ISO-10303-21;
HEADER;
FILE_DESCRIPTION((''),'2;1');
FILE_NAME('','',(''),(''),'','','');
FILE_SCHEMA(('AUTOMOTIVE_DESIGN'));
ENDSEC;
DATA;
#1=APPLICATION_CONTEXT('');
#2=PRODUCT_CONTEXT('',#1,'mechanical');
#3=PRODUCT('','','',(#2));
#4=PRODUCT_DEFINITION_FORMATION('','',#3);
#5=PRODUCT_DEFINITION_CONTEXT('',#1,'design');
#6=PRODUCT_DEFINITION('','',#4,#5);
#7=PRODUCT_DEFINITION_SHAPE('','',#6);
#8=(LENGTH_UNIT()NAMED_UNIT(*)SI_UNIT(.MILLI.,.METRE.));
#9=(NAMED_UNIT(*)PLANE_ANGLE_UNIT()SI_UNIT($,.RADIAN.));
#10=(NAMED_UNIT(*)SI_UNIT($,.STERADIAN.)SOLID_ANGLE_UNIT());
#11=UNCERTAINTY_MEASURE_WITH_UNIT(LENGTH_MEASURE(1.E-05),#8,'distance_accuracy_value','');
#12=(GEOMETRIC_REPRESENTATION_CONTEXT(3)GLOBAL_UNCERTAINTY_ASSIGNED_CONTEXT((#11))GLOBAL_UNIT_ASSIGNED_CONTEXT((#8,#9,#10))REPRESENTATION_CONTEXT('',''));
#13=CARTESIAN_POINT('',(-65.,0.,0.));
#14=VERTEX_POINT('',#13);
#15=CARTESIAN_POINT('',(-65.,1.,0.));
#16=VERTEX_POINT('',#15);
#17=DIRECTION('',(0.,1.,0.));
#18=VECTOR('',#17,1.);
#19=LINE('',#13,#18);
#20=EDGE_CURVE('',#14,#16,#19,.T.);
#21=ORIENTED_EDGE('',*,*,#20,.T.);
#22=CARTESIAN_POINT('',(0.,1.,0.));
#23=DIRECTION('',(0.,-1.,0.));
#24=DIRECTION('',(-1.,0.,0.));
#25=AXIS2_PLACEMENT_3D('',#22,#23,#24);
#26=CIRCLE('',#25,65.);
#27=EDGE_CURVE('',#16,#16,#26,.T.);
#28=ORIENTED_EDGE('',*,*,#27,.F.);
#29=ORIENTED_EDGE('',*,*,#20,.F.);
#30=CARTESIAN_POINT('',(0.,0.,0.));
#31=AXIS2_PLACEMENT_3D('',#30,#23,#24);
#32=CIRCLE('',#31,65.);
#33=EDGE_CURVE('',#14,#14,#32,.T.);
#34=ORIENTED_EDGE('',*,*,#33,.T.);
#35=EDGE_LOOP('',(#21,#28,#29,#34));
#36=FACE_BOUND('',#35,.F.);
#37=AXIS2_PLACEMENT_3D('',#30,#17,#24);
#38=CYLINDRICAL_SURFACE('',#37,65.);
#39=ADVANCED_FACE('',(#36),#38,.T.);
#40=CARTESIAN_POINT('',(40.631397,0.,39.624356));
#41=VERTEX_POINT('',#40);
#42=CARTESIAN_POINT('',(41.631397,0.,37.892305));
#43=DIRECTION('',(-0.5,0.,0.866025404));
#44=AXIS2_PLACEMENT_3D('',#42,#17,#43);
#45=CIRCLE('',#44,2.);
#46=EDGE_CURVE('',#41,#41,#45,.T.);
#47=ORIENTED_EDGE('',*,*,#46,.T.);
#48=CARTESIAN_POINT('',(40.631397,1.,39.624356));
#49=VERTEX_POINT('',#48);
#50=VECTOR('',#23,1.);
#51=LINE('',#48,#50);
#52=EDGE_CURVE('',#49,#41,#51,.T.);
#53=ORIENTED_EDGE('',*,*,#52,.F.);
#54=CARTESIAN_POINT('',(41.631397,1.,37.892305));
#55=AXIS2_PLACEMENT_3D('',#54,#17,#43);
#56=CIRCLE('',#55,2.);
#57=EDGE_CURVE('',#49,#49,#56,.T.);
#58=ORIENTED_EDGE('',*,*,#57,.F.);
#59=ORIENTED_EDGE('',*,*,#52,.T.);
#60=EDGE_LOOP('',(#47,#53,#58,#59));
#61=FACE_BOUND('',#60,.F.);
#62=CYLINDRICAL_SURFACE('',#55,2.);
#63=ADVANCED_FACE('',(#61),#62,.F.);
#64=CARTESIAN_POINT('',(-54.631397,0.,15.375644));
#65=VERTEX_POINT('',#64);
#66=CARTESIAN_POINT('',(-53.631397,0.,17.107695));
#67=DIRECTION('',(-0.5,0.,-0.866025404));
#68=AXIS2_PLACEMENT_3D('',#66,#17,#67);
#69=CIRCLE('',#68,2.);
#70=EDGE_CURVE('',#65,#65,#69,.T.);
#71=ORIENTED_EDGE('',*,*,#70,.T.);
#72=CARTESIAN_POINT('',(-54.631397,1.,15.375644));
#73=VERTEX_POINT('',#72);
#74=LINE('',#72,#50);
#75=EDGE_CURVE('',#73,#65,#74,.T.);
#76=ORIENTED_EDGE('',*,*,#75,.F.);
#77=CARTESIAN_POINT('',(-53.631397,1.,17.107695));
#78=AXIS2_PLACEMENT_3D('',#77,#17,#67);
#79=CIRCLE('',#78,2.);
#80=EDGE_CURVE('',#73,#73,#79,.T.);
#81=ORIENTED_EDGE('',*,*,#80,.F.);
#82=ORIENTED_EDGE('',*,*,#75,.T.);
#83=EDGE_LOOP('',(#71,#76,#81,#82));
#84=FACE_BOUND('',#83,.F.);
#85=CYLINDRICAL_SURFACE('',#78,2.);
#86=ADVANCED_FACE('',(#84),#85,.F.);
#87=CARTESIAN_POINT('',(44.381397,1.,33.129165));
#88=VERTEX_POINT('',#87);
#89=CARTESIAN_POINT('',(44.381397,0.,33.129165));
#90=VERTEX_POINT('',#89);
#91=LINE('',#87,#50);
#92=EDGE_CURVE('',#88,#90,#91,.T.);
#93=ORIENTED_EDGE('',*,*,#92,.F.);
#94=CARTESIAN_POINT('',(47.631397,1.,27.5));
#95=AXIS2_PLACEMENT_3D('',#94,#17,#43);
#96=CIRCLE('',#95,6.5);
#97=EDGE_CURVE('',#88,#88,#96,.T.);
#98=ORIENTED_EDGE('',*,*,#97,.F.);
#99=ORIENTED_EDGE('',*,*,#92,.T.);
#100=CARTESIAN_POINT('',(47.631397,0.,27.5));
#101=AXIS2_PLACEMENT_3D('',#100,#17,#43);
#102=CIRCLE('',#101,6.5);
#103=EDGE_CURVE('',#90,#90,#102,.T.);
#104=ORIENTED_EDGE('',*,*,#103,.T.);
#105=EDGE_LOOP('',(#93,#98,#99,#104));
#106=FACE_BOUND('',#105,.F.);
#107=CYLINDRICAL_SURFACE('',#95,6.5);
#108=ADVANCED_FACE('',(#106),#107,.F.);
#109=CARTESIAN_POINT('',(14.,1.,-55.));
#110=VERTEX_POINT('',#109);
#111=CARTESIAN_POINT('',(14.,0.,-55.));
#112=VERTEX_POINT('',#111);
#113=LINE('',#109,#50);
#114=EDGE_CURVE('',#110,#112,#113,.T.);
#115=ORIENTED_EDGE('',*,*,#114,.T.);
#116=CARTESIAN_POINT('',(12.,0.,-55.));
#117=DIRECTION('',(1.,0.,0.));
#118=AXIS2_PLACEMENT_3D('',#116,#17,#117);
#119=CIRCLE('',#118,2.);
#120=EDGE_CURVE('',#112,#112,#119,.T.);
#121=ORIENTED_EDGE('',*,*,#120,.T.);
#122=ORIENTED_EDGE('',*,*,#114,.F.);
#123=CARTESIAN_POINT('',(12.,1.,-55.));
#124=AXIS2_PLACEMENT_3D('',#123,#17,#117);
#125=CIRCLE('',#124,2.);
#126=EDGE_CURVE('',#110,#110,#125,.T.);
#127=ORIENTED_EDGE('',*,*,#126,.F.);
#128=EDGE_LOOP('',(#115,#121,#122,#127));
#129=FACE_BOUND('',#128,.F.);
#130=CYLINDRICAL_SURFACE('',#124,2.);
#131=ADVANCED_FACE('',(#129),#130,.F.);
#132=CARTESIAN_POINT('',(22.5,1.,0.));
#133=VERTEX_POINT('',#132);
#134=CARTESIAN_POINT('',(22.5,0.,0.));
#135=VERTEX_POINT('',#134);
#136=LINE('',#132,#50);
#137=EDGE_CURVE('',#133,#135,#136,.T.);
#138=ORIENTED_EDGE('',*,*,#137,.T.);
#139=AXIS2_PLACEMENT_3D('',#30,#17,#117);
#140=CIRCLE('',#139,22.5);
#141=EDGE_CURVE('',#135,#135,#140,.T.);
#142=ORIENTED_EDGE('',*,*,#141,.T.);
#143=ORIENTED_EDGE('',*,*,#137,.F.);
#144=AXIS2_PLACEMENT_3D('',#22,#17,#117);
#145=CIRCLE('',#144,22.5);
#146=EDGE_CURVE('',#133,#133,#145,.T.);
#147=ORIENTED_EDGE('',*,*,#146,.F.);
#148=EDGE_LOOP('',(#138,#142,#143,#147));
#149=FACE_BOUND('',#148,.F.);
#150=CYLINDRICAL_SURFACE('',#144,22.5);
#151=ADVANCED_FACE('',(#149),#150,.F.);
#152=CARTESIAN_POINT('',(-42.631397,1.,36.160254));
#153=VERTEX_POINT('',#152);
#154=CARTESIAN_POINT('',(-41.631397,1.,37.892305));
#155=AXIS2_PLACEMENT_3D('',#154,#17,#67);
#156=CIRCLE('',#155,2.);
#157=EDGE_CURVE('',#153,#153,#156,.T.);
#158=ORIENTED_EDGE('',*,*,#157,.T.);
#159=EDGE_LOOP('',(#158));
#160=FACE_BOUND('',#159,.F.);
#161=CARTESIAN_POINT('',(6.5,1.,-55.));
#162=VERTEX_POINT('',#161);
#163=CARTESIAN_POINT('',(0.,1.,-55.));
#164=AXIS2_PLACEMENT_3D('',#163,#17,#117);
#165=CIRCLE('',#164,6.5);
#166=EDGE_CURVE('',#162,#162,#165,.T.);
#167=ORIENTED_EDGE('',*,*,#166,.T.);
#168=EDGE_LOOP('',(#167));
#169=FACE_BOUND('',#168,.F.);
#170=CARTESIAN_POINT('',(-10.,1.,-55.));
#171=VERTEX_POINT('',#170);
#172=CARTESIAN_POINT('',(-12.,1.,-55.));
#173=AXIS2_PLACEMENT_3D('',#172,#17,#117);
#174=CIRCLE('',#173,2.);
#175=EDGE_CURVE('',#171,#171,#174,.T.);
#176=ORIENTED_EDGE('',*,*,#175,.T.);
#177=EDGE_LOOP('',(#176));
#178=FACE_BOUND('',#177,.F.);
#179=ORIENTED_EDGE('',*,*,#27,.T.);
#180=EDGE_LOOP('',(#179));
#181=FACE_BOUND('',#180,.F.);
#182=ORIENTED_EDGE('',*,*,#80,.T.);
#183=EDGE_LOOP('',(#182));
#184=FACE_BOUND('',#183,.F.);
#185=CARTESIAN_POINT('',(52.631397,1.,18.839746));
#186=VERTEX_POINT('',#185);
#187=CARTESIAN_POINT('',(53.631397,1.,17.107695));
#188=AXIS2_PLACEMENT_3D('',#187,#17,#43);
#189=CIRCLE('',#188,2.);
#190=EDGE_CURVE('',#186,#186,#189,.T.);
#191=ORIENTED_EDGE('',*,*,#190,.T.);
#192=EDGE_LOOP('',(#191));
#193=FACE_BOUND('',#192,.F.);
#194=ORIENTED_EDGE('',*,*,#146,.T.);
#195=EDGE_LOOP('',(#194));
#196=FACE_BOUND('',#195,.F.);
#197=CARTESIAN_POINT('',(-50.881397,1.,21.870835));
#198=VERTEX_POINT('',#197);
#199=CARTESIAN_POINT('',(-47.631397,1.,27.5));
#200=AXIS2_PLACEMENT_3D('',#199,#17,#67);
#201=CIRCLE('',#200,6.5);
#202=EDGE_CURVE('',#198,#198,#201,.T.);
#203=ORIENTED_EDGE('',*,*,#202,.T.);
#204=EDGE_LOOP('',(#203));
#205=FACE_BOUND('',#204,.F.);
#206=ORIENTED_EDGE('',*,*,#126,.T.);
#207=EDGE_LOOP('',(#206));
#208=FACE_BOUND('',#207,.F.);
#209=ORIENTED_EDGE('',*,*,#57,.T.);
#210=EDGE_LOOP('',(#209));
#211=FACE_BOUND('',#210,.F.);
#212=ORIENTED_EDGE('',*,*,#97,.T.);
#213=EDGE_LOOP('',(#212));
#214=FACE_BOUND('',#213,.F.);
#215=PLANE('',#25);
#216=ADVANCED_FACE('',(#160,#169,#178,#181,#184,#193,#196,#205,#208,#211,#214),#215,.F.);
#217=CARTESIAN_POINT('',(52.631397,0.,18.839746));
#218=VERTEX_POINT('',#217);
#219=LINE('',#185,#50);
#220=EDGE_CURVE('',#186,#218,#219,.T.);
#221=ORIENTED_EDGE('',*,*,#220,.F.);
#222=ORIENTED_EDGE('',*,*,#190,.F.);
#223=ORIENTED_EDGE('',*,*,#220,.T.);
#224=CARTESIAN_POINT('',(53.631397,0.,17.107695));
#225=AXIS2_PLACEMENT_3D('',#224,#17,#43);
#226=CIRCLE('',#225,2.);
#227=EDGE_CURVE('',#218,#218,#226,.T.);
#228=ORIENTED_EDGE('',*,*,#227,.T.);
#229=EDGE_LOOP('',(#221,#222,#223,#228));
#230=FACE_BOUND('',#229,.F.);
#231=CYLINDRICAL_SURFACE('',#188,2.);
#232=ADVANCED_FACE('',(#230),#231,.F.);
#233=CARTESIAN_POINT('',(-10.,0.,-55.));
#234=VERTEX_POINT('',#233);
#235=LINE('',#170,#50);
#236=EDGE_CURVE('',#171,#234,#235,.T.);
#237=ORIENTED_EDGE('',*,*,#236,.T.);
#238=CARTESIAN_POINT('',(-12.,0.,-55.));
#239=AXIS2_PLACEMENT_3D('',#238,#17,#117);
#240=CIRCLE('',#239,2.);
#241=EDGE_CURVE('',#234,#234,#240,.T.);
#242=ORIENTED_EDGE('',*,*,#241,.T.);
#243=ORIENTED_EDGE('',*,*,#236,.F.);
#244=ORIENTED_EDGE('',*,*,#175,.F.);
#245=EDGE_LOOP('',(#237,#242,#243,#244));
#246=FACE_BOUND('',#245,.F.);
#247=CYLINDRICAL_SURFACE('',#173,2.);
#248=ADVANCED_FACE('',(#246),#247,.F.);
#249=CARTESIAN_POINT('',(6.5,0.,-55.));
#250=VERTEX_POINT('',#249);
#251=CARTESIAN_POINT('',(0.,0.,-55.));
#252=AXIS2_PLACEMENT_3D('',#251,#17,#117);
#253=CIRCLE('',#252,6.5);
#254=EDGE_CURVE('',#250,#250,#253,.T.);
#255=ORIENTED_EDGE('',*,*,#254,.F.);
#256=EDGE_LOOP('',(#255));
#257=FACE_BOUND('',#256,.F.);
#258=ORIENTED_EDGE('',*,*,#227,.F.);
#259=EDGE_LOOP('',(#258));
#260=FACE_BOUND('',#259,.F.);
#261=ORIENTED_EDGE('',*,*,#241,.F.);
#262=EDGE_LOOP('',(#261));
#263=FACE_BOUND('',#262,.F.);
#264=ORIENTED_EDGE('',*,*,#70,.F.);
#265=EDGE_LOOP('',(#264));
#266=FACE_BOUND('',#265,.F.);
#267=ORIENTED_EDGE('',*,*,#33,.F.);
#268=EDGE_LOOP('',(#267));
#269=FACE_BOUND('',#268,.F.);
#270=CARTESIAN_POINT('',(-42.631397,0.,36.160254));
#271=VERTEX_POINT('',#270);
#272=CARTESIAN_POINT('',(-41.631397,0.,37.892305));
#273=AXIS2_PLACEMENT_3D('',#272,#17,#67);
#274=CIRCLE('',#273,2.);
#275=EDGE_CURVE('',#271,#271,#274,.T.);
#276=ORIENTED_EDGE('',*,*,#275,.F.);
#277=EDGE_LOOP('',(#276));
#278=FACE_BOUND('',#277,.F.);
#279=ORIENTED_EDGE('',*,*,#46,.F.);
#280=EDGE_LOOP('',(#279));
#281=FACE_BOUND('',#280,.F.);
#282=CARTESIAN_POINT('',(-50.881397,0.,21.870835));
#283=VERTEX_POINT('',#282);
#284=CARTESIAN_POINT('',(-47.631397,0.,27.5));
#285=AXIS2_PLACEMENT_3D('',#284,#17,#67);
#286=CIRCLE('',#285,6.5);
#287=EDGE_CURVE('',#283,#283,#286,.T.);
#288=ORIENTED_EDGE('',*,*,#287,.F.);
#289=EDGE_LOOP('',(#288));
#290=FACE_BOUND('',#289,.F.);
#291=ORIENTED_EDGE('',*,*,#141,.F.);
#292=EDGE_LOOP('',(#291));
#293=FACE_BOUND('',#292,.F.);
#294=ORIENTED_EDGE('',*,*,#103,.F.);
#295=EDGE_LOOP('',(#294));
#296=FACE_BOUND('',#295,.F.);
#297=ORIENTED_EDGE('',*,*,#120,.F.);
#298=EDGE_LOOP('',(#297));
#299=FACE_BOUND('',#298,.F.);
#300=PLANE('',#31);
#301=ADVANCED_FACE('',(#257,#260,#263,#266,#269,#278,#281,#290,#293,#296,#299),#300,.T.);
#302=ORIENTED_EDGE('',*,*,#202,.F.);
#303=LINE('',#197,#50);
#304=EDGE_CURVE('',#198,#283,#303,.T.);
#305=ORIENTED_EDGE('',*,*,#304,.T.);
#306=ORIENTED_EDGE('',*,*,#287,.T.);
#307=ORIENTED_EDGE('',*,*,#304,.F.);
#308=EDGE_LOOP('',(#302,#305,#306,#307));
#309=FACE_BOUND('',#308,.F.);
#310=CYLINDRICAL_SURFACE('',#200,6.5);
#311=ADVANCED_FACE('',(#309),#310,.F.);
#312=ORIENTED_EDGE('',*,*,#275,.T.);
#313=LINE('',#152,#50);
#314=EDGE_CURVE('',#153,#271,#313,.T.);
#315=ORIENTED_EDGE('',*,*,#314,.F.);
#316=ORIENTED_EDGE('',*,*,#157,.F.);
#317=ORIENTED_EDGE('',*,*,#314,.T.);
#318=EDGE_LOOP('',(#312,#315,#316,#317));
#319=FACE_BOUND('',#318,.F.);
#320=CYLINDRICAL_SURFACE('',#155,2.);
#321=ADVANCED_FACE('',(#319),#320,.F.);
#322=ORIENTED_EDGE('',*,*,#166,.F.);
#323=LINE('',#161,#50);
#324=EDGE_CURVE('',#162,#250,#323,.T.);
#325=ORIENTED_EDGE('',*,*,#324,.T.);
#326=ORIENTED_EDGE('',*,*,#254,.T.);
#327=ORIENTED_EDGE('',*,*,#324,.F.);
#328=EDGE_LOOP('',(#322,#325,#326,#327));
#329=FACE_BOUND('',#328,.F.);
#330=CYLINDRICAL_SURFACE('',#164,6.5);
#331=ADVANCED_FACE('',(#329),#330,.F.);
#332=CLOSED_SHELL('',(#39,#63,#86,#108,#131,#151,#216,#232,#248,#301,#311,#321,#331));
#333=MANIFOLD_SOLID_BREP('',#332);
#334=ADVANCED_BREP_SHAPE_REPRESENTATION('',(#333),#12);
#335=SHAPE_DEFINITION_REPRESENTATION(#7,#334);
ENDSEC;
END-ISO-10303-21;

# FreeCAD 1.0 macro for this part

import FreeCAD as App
import Part
import Sketcher
from FreeCAD import Vector

doc = App.newDocument("Part")
params = doc.addObject("Spreadsheet::Sheet", "Params")
for row, (alias, value) in enumerate([
    ("sketch1_width", "65 mm"),
    ("sketch1_height", "1 mm"),
    ("revolution_angle", "360 deg"),
    ("sketch2_diameter", "45 mm"),
    ("sketch3_diameter", "13 mm"),
    ("sketch3_diameter2", "4 mm"),
], start=1):
    params.set(f"A{row}", alias)
    params.set(f"B{row}", "=" + value)
    params.setAlias(f"B{row}", alias)

body = doc.addObject("PartDesign::Body", "Body")

sketch1 = body.newObject("Sketcher::SketchObject", "Sketch")
sketch1.AttachmentSupport = (doc.getObject("XY_Plane"), [""])
sketch1.MapMode = "FlatFace"
sketch1.addGeometry([
    Part.LineSegment(Vector(-65, 0, 0), Vector(0, 0, 0)),
    Part.LineSegment(Vector(0, 0, 0), Vector(0, 1, 0)),
    Part.LineSegment(Vector(0, 1, 0), Vector(-65, 1, 0)),
    Part.LineSegment(Vector(-65, 1, 0), Vector(-65, 0, 0)),
], False)
sketch1.addConstraint([
    Sketcher.Constraint("Coincident", 0, 2, 1, 1),
    Sketcher.Constraint("Coincident", 1, 2, 2, 1),
    Sketcher.Constraint("Coincident", 2, 2, 3, 1),
    Sketcher.Constraint("Coincident", 3, 2, 0, 1),
    Sketcher.Constraint("Horizontal", 0),
    Sketcher.Constraint("Vertical", 1),
    Sketcher.Constraint("Horizontal", 2),
    Sketcher.Constraint("Vertical", 3),
    Sketcher.Constraint("Coincident", 0, 2, -1, 1),
    Sketcher.Constraint("DistanceX", 0, 1, 0, 2, 65.0),
    Sketcher.Constraint("DistanceY", 1, 1, 1, 2, 1.0),
])
sketch1.setExpression("Constraints[9]", "Params.sketch1_width")
sketch1.setExpression("Constraints[10]", "Params.sketch1_height")
revolution = body.newObject("PartDesign::Revolution", "Revolution")
revolution.Profile = sketch1
revolution.ReferenceAxis = (sketch1, ["V_Axis"])
revolution.setExpression("Angle", "Params.revolution_angle")

sketch2 = body.newObject("Sketcher::SketchObject", "Sketch001")
sketch2.AttachmentSupport = (doc.getObject("XZ_Plane"), [""])
sketch2.MapMode = "FlatFace"
sketch2.AttachmentOffset = App.Placement(Vector(0, 0, -1), App.Rotation())
sketch2.addGeometry(Part.Circle(Vector(0, 0, 0), Vector(0, 0, 1), 22.5), False)
sketch2.addConstraint([
    Sketcher.Constraint("Coincident", 0, 3, -1, 1),
    Sketcher.Constraint("Diameter", 0, 45.0),
])
sketch2.setExpression("Constraints[1]", "Params.sketch2_diameter")
pocket1 = body.newObject("PartDesign::Pocket", "Pocket")
pocket1.Profile = sketch2
pocket1.Type = "ThroughAll"
pocket1.Reversed = True

sketch3 = body.newObject("Sketcher::SketchObject", "Sketch002")
sketch3.AttachmentSupport = (doc.getObject("XZ_Plane"), [""])
sketch3.MapMode = "FlatFace"
sketch3.AttachmentOffset = App.Placement(Vector(0, 0, -1), App.Rotation())
sketch3.addGeometry([
    Part.Circle(Vector(0, -55, 0), Vector(0, 0, 1), 6.5),
    Part.Circle(Vector(-12, -55, 0), Vector(0, 0, 1), 2),
    Part.Circle(Vector(12, -55, 0), Vector(0, 0, 1), 2),
], False)
sketch3.addConstraint([
    Sketcher.Constraint("Equal", 1, 2),
    Sketcher.Constraint("Symmetric", 1, 3, 2, 3, -2),
    Sketcher.Constraint("PointOnObject", 0, 3, -2),
    Sketcher.Constraint("Horizontal", 0, 3, 1, 3),
    Sketcher.Constraint("Diameter", 0, 13.0),
    Sketcher.Constraint("Diameter", 1, 4.0),
    Sketcher.Constraint("DistanceY", 0, 3, -1, 1, 55.0),
    Sketcher.Constraint("DistanceX", 1, 3, -1, 1, 12.0),
])
sketch3.setExpression("Constraints[4]", "Params.sketch3_diameter")
sketch3.setExpression("Constraints[5]", "Params.sketch3_diameter2")
pocket2 = body.newObject("PartDesign::Pocket", "Pocket001")
pocket2.Profile = sketch3
pocket2.Type = "ThroughAll"
pocket2.Reversed = True
doc.recompute()

polarpattern = body.newObject("PartDesign::PolarPattern", "PolarPattern")
polarpattern.Originals = [pocket2]
polarpattern.Axis = (doc.getObject("Y_Axis"), [""])
polarpattern.Angle = 360
polarpattern.Occurrences = 3
body.Tip = polarpattern

doc.recompute()
